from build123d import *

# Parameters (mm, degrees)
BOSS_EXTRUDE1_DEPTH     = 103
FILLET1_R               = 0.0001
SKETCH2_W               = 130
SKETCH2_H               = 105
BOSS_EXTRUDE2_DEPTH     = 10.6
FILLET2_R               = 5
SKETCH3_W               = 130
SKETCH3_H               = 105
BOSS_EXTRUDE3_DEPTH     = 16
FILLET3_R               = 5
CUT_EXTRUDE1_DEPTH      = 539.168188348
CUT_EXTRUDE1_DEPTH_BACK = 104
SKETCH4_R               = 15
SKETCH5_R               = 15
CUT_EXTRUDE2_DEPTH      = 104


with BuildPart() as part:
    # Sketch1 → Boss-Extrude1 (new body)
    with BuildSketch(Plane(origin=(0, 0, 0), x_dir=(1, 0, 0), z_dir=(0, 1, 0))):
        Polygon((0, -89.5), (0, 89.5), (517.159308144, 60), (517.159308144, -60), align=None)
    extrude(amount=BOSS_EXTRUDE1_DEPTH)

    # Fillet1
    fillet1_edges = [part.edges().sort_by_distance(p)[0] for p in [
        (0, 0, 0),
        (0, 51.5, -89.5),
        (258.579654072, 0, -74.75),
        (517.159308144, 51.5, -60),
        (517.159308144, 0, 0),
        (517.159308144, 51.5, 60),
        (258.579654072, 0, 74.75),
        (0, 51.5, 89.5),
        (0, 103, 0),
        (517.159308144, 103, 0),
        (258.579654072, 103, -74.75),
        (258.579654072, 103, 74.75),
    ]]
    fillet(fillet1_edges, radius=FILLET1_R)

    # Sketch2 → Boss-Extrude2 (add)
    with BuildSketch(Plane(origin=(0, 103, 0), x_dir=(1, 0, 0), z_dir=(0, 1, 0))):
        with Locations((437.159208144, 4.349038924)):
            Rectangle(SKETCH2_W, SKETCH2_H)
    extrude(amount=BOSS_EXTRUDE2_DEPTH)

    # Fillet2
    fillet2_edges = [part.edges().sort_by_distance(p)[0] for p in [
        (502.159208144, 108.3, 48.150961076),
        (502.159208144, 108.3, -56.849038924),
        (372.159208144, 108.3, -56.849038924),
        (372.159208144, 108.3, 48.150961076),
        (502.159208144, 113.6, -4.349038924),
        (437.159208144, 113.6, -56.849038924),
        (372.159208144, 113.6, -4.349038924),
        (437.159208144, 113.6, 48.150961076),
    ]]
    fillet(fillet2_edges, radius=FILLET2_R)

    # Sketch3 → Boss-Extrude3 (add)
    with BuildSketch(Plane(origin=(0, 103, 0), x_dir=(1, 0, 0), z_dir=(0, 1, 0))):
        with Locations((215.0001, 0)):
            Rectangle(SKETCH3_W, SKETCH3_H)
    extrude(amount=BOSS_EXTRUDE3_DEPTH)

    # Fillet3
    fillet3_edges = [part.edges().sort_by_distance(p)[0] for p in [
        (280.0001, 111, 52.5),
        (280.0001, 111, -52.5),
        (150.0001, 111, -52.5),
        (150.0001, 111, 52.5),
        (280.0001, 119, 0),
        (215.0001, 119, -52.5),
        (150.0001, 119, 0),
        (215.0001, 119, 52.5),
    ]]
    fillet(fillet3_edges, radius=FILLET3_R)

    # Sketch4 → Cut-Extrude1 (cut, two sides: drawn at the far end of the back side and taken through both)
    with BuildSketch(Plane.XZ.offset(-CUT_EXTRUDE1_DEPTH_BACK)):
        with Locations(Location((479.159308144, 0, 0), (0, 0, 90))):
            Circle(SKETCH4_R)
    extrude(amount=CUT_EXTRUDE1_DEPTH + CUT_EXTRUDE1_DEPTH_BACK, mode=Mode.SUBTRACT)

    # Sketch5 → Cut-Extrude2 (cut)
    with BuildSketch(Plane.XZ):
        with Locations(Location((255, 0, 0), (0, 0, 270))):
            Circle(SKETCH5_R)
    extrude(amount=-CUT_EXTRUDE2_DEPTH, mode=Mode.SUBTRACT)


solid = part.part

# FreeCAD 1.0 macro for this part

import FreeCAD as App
import Part
import Sketcher

V = App.Vector
Q = App.Units.Quantity


def edges_at(feature, points):
    """Names of the edges that pass closest to the given points."""
    edges = feature.Shape.Edges
    near = lambda p: min(range(len(edges)), key=lambda i: edges[i].distToShape(Part.Vertex(*p))[0])
    return sorted({f"Edge{near(p) + 1}" for p in points})

doc = App.newDocument("Part")
body = doc.addObject("PartDesign::Body", "Body")

sketch1 = body.newObject("Sketcher::SketchObject", "Sketch")
sketch1.AttachmentSupport = (doc.getObject("XZ_Plane"), [""])
sketch1.MapMode = "FlatFace"
sketch1.addGeometry([
    Part.LineSegment(V(0, -90, 0), V(0, 90, 0)),
    Part.LineSegment(V(0, 90, 0), V(517, 60, 0)),
    Part.LineSegment(V(517, 60, 0), V(517, -60, 0)),
    Part.LineSegment(V(517, -60, 0), V(0, -90, 0)),
], False)
sketch1.addConstraint([
    Sketcher.Constraint("Coincident", 0, 2, 1, 1),
    Sketcher.Constraint("Coincident", 1, 2, 2, 1),
    Sketcher.Constraint("Coincident", 2, 2, 3, 1),
    Sketcher.Constraint("Coincident", 3, 2, 0, 1),
    Sketcher.Constraint("Vertical", 0),
    Sketcher.Constraint("Vertical", 2),
    Sketcher.Constraint("Symmetric", 0, 2, 3, 2, -1, 1),
    Sketcher.Constraint("Equal", 1, 3),
    Sketcher.Constraint("DistanceY", 0, 1, 0, 2, Q("179 mm")),
    Sketcher.Constraint("DistanceY", 2, 2, 2, 1, Q("120 mm")),
    Sketcher.Constraint("Distance", 1, Q("518 mm")),
])
pad1 = body.newObject("PartDesign::Pad", "Pad")
pad1.Profile = sketch1
pad1.Length = 103
pad1.Reversed = True
doc.recompute()

fillet = body.newObject("PartDesign::Fillet", "Fillet")
fillet.Base = (pad1, ["Edge1"])
fillet.UseAllEdges = True
fillet.Radius = 0.0001

sketch2 = body.newObject("Sketcher::SketchObject", "Sketch001")
sketch2.AttachmentSupport = (doc.getObject("XZ_Plane"), [""])
sketch2.MapMode = "FlatFace"
sketch2.AttachmentOffset = App.Placement(V(0, 0, -103), App.Rotation())
sketch2.addGeometry([
    Part.LineSegment(V(372, -57, 0), V(372, 48, 0)),
    Part.LineSegment(V(372, 48, 0), V(502, 48, 0)),
    Part.LineSegment(V(502, 48, 0), V(502, -57, 0)),
    Part.LineSegment(V(502, -57, 0), V(372, -57, 0)),
], False)
sketch2.addConstraint([
    Sketcher.Constraint("Coincident", 0, 2, 1, 1),
    Sketcher.Constraint("Coincident", 1, 2, 2, 1),
    Sketcher.Constraint("Coincident", 2, 2, 3, 1),
    Sketcher.Constraint("Coincident", 3, 2, 0, 1),
    Sketcher.Constraint("Vertical", 0),
    Sketcher.Constraint("Horizontal", 1),
    Sketcher.Constraint("Vertical", 2),
    Sketcher.Constraint("Horizontal", 3),
    Sketcher.Constraint("DistanceX", 1, 1, 1, 2, Q("130 mm")),
    Sketcher.Constraint("DistanceY", 0, 1, 0, 2, Q("105 mm")),
    Sketcher.Constraint("DistanceX", -1, 1, 0, 2, Q("372.159208 mm")),
    Sketcher.Constraint("DistanceY", -1, 1, 0, 2, Q("48.150961 mm")),
])
pad2 = body.newObject("PartDesign::Pad", "Pad001")
pad2.Profile = sketch2
pad2.Length = 10.6
pad2.Reversed = True
doc.recompute()

fillet2 = body.newObject("PartDesign::Fillet", "Fillet001")
fillet2.Base = (pad2, edges_at(pad2, [
    (502.159, 108.3, 48.151),
    (502.159, 108.3, -56.849),
    (372.159, 108.3, -56.849),
    (372.159, 108.3, 48.151),
    (502.159, 113.6, -4.349),
    (437.159, 113.6, -56.849),
    (372.159, 113.6, -4.349),
    (437.159, 113.6, 48.151),
]))
fillet2.Radius = 5

sketch3 = body.newObject("Sketcher::SketchObject", "Sketch002")
sketch3.AttachmentSupport = (doc.getObject("XZ_Plane"), [""])
sketch3.MapMode = "FlatFace"
sketch3.AttachmentOffset = App.Placement(V(0, 0, -103), App.Rotation())
sketch3.addGeometry([
    Part.LineSegment(V(150, -52, 0), V(150, 52, 0)),
    Part.LineSegment(V(150, 52, 0), V(280, 52, 0)),
    Part.LineSegment(V(280, 52, 0), V(280, -52, 0)),
    Part.LineSegment(V(280, -52, 0), V(150, -52, 0)),
], False)
sketch3.addConstraint([
    Sketcher.Constraint("Coincident", 0, 2, 1, 1),
    Sketcher.Constraint("Coincident", 1, 2, 2, 1),
    Sketcher.Constraint("Coincident", 2, 2, 3, 1),
    Sketcher.Constraint("Coincident", 3, 2, 0, 1),
    Sketcher.Constraint("Vertical", 0),
    Sketcher.Constraint("Horizontal", 1),
    Sketcher.Constraint("Vertical", 2),
    Sketcher.Constraint("Horizontal", 3),
    Sketcher.Constraint("DistanceX", 1, 1, 1, 2, Q("130 mm")),
    Sketcher.Constraint("DistanceY", 0, 1, 0, 2, Q("105 mm")),
    Sketcher.Constraint("DistanceY", -1, 1, 0, 2, Q("52.5 mm")),
    Sketcher.Constraint("DistanceX", -1, 1, 0, 2, Q("150.0001 mm")),
])
pad3 = body.newObject("PartDesign::Pad", "Pad002")
pad3.Profile = sketch3
pad3.Length = 16
pad3.Reversed = True
doc.recompute()

fillet3 = body.newObject("PartDesign::Fillet", "Fillet002")
fillet3.Base = (pad3, edges_at(pad3, [
    (280, 111, 52.5),
    (280, 111, -52.5),
    (150, 111, -52.5),
    (150, 111, 52.5),
    (280, 119, 0),
    (215, 119, -52.5),
    (150, 119, 0),
    (215, 119, 52.5),
]))
fillet3.Radius = 5

sketch4 = body.newObject("Sketcher::SketchObject", "Sketch003")
sketch4.AttachmentSupport = (doc.getObject("XZ_Plane"), [""])
sketch4.MapMode = "FlatFace"
sketch4.addGeometry(Part.Circle(V(479, 0, 0), V(0, 0, 1), 15), False)
sketch4.addConstraint([
    Sketcher.Constraint("PointOnObject", 0, 3, -1),
    Sketcher.Constraint("Diameter", 0, Q("30 mm")),
    Sketcher.Constraint("DistanceX", -1, 1, 0, 3, Q("479.159308 mm")),
])
pocket1 = body.newObject("PartDesign::Pocket", "Pocket")
pocket1.Profile = sketch4
pocket1.Type = "TwoLengths"
pocket1.Length = 539.168188
pocket1.Length2 = 104
pocket1.Reversed = True

sketch5 = body.newObject("Sketcher::SketchObject", "Sketch004")
sketch5.AttachmentSupport = (doc.getObject("XZ_Plane"), [""])
sketch5.MapMode = "FlatFace"
sketch5.addGeometry(Part.Circle(V(255, 0, 0), V(0, 0, 1), 15), False)
sketch5.addConstraint([
    Sketcher.Constraint("PointOnObject", 0, 3, -1),
    Sketcher.Constraint("Diameter", 0, Q("30 mm")),
    Sketcher.Constraint("DistanceX", -1, 1, 0, 3, Q("255 mm")),
])
pocket2 = body.newObject("PartDesign::Pocket", "Pocket001")
pocket2.Profile = sketch5
pocket2.Length = 104

doc.recompute()
